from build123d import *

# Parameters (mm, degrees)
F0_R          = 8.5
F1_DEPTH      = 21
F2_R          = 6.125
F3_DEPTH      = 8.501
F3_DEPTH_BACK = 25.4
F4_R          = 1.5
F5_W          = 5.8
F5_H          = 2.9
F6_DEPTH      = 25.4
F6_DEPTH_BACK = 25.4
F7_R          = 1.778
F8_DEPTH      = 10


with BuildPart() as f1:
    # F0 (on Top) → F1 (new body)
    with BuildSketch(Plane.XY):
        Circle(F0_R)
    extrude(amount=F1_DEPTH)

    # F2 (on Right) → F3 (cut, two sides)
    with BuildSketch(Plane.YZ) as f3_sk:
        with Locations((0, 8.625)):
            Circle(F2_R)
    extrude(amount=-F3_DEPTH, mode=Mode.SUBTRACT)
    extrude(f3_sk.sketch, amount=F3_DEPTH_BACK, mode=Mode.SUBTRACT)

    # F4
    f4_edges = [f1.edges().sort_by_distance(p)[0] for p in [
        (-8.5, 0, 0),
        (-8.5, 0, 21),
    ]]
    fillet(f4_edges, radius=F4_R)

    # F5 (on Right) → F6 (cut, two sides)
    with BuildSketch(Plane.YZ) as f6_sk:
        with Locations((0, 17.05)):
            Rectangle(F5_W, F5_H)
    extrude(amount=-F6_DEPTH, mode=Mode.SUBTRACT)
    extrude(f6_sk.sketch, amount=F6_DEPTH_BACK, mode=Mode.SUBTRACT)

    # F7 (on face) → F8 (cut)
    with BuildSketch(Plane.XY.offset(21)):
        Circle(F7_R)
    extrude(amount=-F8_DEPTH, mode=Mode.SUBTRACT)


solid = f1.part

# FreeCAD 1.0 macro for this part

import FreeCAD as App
import Part
import Sketcher
Q = App.Units.Quantity


def edges_at(feature, points):
    """Names of the edges that pass closest to the given points."""
    edges = feature.Shape.Edges
    near = lambda p: min(range(len(edges)), key=lambda i: edges[i].distToShape(Part.Vertex(*p))[0])
    return sorted({f"Edge{near(p) + 1}" for p in points})


def add_polygon(sketch, points):
    """Adds a closed chain of lines whose ends are joined by coincident constraints."""
    first, n = sketch.GeometryCount, len(points)
    for a, b in zip(points, points[1:] + points[:1]):
        sketch.addGeometry(Part.LineSegment(App.Vector(*a, 0), App.Vector(*b, 0)), False)
    for i in range(n):
        sketch.addConstraint(Sketcher.Constraint("Coincident", first + i, 2, first + (i + 1) % n, 1))

doc = App.newDocument("Part")
body = doc.addObject("PartDesign::Body", "Body")

# Sketch on XY plane
sketch1 = body.newObject("Sketcher::SketchObject", "Sketch")
sketch1.AttachmentSupport = (doc.getObject("XY_Plane"), [""])
sketch1.MapMode = "FlatFace"
sketch1.addGeometry(Part.Circle(App.Vector(0, 0, 0), App.Vector(0, 0, 1), 8), False)
sketch1.addConstraint([
    Sketcher.Constraint("Coincident", 0, 3, -1, 1),
    Sketcher.Constraint("Diameter", 0, Q("17 mm")),
])
pad1 = body.newObject("PartDesign::Pad", "Pad")
pad1.Profile = sketch1
pad1.Length = 21

# Sketch on YZ plane
sketch2 = body.newObject("Sketcher::SketchObject", "Sketch001")
sketch2.AttachmentSupport = (doc.getObject("YZ_Plane"), [""])
sketch2.MapMode = "FlatFace"
sketch2.addGeometry(Part.Circle(App.Vector(0, 9, 0), App.Vector(0, 0, 1), 6), False)
sketch2.addConstraint([
    Sketcher.Constraint("PointOnObject", 0, 3, -2),
    Sketcher.Constraint("Diameter", 0, Q("12.25 mm")),
    Sketcher.Constraint("DistanceY", -1, 1, 0, 3, Q("8.625 mm")),
])
pocket1 = body.newObject("PartDesign::Pocket", "Pocket")
pocket1.Profile = sketch2
pocket1.Type = "ThroughAll"
pocket1.Midplane = True
doc.recompute()

fillet = body.newObject("PartDesign::Fillet", "Fillet")
fillet.Base = (pocket1, edges_at(pocket1, [(-8.5, 0, 0), (-8.5, 0, 21)]))
fillet.Radius = 1.5

# Sketch on YZ plane
sketch3 = body.newObject("Sketcher::SketchObject", "Sketch002")
sketch3.AttachmentSupport = (doc.getObject("YZ_Plane"), [""])
sketch3.MapMode = "FlatFace"
add_polygon(sketch3, [(-2.9, 18.5), (-2.9, 15.6), (2.9, 15.6), (2.9, 18.5)])  # lines 0-3
sketch3.addConstraint([
    Sketcher.Constraint("Vertical", 0),
    Sketcher.Constraint("Horizontal", 1),
    Sketcher.Constraint("Vertical", 2),
    Sketcher.Constraint("Horizontal", 3),
    Sketcher.Constraint("DistanceX", 1, 1, 1, 2, Q("5.8 mm")),
    Sketcher.Constraint("DistanceY", 0, 2, 0, 1, Q("2.9 mm")),
    Sketcher.Constraint("DistanceX", 0, 2, -1, 1, Q("2.9 mm")),
    Sketcher.Constraint("DistanceY", -1, 1, 0, 2, Q("15.6 mm")),
])
pocket2 = body.newObject("PartDesign::Pocket", "Pocket001")
pocket2.Profile = sketch3
pocket2.Type = "ThroughAll"
pocket2.Midplane = True

# Sketch on XY plane
sketch4 = body.newObject("Sketcher::SketchObject", "Sketch003")
sketch4.AttachmentSupport = (doc.getObject("XY_Plane"), [""])
sketch4.MapMode = "FlatFace"
sketch4.AttachmentOffset = App.Placement(App.Vector(0, 0, 21), App.Rotation())
sketch4.addGeometry(Part.Circle(App.Vector(0, 0, 0), App.Vector(0, 0, 1), 1.8), False)
sketch4.addConstraint([
    Sketcher.Constraint("Coincident", 0, 3, -1, 1),
    Sketcher.Constraint("Diameter", 0, Q("3.556 mm")),
])
pocket3 = body.newObject("PartDesign::Pocket", "Pocket002")
pocket3.Profile = sketch4
pocket3.Length = 10

doc.recompute()
